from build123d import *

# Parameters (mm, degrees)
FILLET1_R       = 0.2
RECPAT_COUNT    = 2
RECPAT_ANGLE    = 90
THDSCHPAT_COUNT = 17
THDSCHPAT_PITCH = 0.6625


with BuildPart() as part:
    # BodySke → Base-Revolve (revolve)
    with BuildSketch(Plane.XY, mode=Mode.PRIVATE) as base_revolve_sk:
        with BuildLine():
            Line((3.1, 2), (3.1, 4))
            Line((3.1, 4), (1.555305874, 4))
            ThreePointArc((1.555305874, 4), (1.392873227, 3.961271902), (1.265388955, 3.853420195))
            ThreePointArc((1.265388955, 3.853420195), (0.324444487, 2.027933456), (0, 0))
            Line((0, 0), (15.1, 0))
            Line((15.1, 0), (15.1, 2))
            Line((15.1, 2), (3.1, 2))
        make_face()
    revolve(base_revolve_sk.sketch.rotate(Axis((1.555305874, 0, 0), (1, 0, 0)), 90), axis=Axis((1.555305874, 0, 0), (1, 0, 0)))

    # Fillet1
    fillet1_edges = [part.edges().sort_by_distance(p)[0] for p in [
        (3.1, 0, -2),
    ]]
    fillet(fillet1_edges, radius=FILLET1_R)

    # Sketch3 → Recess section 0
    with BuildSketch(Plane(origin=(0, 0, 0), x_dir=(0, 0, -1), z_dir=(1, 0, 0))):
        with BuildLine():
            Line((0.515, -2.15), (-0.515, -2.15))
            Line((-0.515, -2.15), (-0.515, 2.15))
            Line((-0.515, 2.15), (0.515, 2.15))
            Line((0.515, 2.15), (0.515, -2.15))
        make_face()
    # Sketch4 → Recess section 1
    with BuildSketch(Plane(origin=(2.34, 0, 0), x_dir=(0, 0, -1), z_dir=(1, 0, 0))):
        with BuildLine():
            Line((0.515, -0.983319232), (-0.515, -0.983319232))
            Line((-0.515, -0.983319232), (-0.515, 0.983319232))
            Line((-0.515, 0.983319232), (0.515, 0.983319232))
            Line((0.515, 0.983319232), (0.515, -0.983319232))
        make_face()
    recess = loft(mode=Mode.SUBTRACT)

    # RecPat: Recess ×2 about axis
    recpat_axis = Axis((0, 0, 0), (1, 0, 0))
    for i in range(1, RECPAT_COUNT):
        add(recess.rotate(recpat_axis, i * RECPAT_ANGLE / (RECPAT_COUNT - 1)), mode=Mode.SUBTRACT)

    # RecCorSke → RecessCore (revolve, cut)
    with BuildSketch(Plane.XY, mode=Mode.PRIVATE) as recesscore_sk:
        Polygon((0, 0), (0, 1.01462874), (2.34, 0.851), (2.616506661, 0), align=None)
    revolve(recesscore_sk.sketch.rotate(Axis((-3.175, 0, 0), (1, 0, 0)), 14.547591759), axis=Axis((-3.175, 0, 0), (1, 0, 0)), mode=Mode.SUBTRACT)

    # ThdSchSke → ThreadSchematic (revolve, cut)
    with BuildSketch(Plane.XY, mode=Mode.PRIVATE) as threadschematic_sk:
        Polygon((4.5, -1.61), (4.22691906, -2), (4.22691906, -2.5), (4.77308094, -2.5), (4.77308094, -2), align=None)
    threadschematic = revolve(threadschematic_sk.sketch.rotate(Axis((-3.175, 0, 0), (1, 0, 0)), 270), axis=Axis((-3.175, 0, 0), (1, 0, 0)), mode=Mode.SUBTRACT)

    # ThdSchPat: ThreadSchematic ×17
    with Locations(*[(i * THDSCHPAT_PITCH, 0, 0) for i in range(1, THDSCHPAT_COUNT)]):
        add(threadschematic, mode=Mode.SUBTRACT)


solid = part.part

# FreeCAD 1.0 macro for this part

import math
import FreeCAD as App
import Part
import Sketcher

V = App.Vector
Q = App.Units.Quantity


def edges_at(feature, points):
    """Names of the edges that pass closest to the given points."""
    edges = feature.Shape.Edges
    near = lambda p: min(range(len(edges)), key=lambda i: edges[i].distToShape(Part.Vertex(*p))[0])
    return sorted({f"Edge{near(p) + 1}" for p in points})


def add_polygon(sketch, points):
    """Adds a closed chain of lines whose ends are joined by coincident constraints."""
    first, n = sketch.GeometryCount, len(points)
    for a, b in zip(points, points[1:] + points[:1]):
        sketch.addGeometry(Part.LineSegment(App.Vector(*a, 0), App.Vector(*b, 0)), False)
    for i in range(n):
        sketch.addConstraint(Sketcher.Constraint("Coincident", first + i, 2, first + (i + 1) % n, 1))

doc = App.newDocument("Part")
body = doc.addObject("PartDesign::Body", "Body")

# Sketch on XY plane
sketch1 = doc.addObject("Sketcher::SketchObject", "Sketch")
body.addObject(sketch1)
sketch1.AttachmentSupport = (doc.XY_Plane, [""])
sketch1.MapMode = "FlatFace"
sketch1.addGeometry(Part.LineSegment(V(3.1, 2, 0), V(3.1, 4, 0)), False)
sketch1.addGeometry(Part.LineSegment(V(3.1, 4, 0), V(1.56, 4, 0)), False)
sketch1.addGeometry(Part.ArcOfCircle(Part.Circle(V(1.56, 3.64, 0), V(0, 0, 1), 0.36), math.radians(90), math.radians(144)), False)
sketch1.addGeometry(Part.ArcOfCircle(Part.Circle(V(6.5, 0, 0), V(0, 0, 1), 6.5), math.radians(144), math.radians(180)), False)
sketch1.addGeometry(Part.LineSegment(V(0, 0, 0), V(15.1, 0, 0)), False)
sketch1.addGeometry(Part.LineSegment(V(15.1, 0, 0), V(15.1, 2, 0)), False)
sketch1.addGeometry(Part.LineSegment(V(15.1, 2, 0), V(3.1, 2, 0)), False)
sketch1.addConstraint(Sketcher.Constraint("Coincident", 0, 2, 1, 1))
sketch1.addConstraint(Sketcher.Constraint("Tangent", 1, 2, 2, 1))
sketch1.addConstraint(Sketcher.Constraint("Tangent", 2, 2, 3, 1))
sketch1.addConstraint(Sketcher.Constraint("Coincident", 3, 2, 4, 1))
sketch1.addConstraint(Sketcher.Constraint("Coincident", 4, 2, 5, 1))
sketch1.addConstraint(Sketcher.Constraint("Coincident", 5, 2, 6, 1))
sketch1.addConstraint(Sketcher.Constraint("Coincident", 6, 2, 0, 1))
sketch1.addConstraint(Sketcher.Constraint("Vertical", 0))
sketch1.addConstraint(Sketcher.Constraint("Horizontal", 1))
sketch1.addConstraint(Sketcher.Constraint("Horizontal", 4))
sketch1.addConstraint(Sketcher.Constraint("Vertical", 5))
sketch1.addConstraint(Sketcher.Constraint("Horizontal", 6))
sketch1.addConstraint(Sketcher.Constraint("Coincident", 3, 2, -1, 1))
sketch1.addConstraint(Sketcher.Constraint("PointOnObject", 3, 3, -1))
sketch1.addConstraint(Sketcher.Constraint("Equal", 0, 5))
sketch1.addConstraint(Sketcher.Constraint("Radius", 3, 6.5))
sketch1.addConstraint(Sketcher.Constraint("DistanceX", 6, 2, 6, 1, 12.0))
sketch1.addConstraint(Sketcher.Constraint("DistanceY", 0, 1, 0, 2, 2.0))
sketch1.addConstraint(Sketcher.Constraint("Radius", 2, 0.36))
sketch1.addConstraint(Sketcher.Constraint("DistanceX", 4, 1, 4, 2, 15.1))
revolution = doc.addObject("PartDesign::Revolution", "Revolution")
body.addObject(revolution)
revolution.Profile = sketch1
revolution.ReferenceAxis = (sketch1, ["H_Axis"])
revolution.Angle = 360
doc.recompute()

fillet = doc.addObject("PartDesign::Fillet", "Fillet")
body.addObject(fillet)
fillet.Base = (revolution, edges_at(revolution, [(3.1, 0, -2)]))
fillet.Radius = 0.2

# Sketch on YZ plane
sketch2 = doc.addObject("Sketcher::SketchObject", "Sketch001")
body.addObject(sketch2)
sketch2.AttachmentSupport = (doc.YZ_Plane, [""])
sketch2.MapMode = "FlatFace"
add_polygon(sketch2, [(-2.1, 0.5), (-2.1, -0.5), (2.1, -0.5), (2.1, 0.5)])  # lines 0-3
sketch2.addConstraint(Sketcher.Constraint("Vertical", 0))
sketch2.addConstraint(Sketcher.Constraint("Horizontal", 1))
sketch2.addConstraint(Sketcher.Constraint("Vertical", 2))
sketch2.addConstraint(Sketcher.Constraint("Horizontal", 3))
sketch2.addConstraint(Sketcher.Constraint("Symmetric", 0, 2, 2, 2, -1, 1))
sketch2.addConstraint(Sketcher.Constraint("DistanceX", 1, 1, 1, 2, 4.3))
sketch2.addConstraint(Sketcher.Constraint("DistanceY", 0, 2, 0, 1, 1.03))

# Sketch on YZ plane
sketch3 = doc.addObject("Sketcher::SketchObject", "Sketch002")
body.addObject(sketch3)
sketch3.AttachmentSupport = (doc.YZ_Plane, [""])
sketch3.MapMode = "FlatFace"
sketch3.AttachmentOffset = App.Placement(V(0, 0, 2.34), App.Rotation())
add_polygon(sketch3, [(-1, 0.5), (-1, -0.5), (1, -0.5), (1, 0.5)])  # lines 0-3
sketch3.addConstraint(Sketcher.Constraint("Vertical", 0))
sketch3.addConstraint(Sketcher.Constraint("Horizontal", 1))
sketch3.addConstraint(Sketcher.Constraint("Vertical", 2))
sketch3.addConstraint(Sketcher.Constraint("Horizontal", 3))
sketch3.addConstraint(Sketcher.Constraint("Symmetric", 0, 2, 2, 2, -1, 1))
sketch3.addConstraint(Sketcher.Constraint("DistanceY", 0, 2, 0, 1, 1.03))
sketch3.addConstraint(Sketcher.Constraint("DistanceX", 1, 1, 1, 2, 1.966638))

subtractiveloft = doc.addObject("PartDesign::SubtractiveLoft", "SubtractiveLoft")
body.addObject(subtractiveloft)
subtractiveloft.Profile = sketch2
subtractiveloft.Sections = [sketch3]
doc.recompute()

polarpattern = doc.addObject("PartDesign::PolarPattern", "PolarPattern")
body.addObject(polarpattern)
polarpattern.Originals = [subtractiveloft]
polarpattern.Axis = (doc.X_Axis, [""])
polarpattern.Angle = 90
polarpattern.Occurrences = 2
body.Tip = polarpattern

# Sketch on XY plane
sketch4 = doc.addObject("Sketcher::SketchObject", "Sketch003")
body.addObject(sketch4)
sketch4.AttachmentSupport = (doc.XY_Plane, [""])
sketch4.MapMode = "FlatFace"
add_polygon(sketch4, [(0, 1), (0, 0), (2.6, 0), (2.3, 0.9)])  # lines 0-3
sketch4.addConstraint(Sketcher.Constraint("Vertical", 0))
sketch4.addConstraint(Sketcher.Constraint("Horizontal", 1))
sketch4.addConstraint(Sketcher.Constraint("Coincident", 0, 2, -1, 1))
sketch4.addConstraint(Sketcher.Constraint("Angle", 2, Q("108 deg")))
sketch4.addConstraint(Sketcher.Constraint("Angle", 3, Q("176 deg")))
sketch4.addConstraint(Sketcher.Constraint("DistanceX", -1, 1, 2, 2, 2.34))
sketch4.addConstraint(Sketcher.Constraint("DistanceY", -1, 1, 2, 2, 0.851))
groove = doc.addObject("PartDesign::Groove", "Groove")
body.addObject(groove)
groove.Profile = sketch4
groove.ReferenceAxis = (sketch4, ["H_Axis"])
groove.Angle = 360

# Sketch on XY plane
sketch5 = doc.addObject("Sketcher::SketchObject", "Sketch004")
body.addObject(sketch5)
sketch5.AttachmentSupport = (doc.XY_Plane, [""])
sketch5.MapMode = "FlatFace"
add_polygon(sketch5, [(4.5, -1.61), (4.23, -2), (4.23, -2.5), (4.77, -2.5), (4.77, -2)])  # lines 0-4
sketch5.addConstraint(Sketcher.Constraint("Vertical", 1))
sketch5.addConstraint(Sketcher.Constraint("Horizontal", 2))
sketch5.addConstraint(Sketcher.Constraint("Vertical", 3))
sketch5.addConstraint(Sketcher.Constraint("Horizontal", 0, 2, 3, 2))
sketch5.addConstraint(Sketcher.Constraint("Equal", 0, 4))
sketch5.addConstraint(Sketcher.Constraint("Angle", 0, Q("-125 deg")))
sketch5.addConstraint(Sketcher.Constraint("DistanceY", 1, 2, 1, 1, 0.5))
sketch5.addConstraint(Sketcher.Constraint("DistanceY", 0, 2, -1, 1, 2.0))
sketch5.addConstraint(Sketcher.Constraint("DistanceX", -1, 1, 4, 2, 4.5))
sketch5.addConstraint(Sketcher.Constraint("DistanceY", 4, 2, -1, 1, 1.61))
groove2 = doc.addObject("PartDesign::Groove", "Groove001")
body.addObject(groove2)
groove2.Profile = sketch5
groove2.ReferenceAxis = (sketch5, ["H_Axis"])
groove2.Angle = 360
doc.recompute()

linearpattern = doc.addObject("PartDesign::LinearPattern", "LinearPattern")
body.addObject(linearpattern)
linearpattern.Originals = [groove2]
linearpattern.Direction = (doc.X_Axis, [""])
linearpattern.Mode = "offset"
linearpattern.Offset = 0.6625
linearpattern.Occurrences = 17
body.Tip = linearpattern

doc.recompute()
